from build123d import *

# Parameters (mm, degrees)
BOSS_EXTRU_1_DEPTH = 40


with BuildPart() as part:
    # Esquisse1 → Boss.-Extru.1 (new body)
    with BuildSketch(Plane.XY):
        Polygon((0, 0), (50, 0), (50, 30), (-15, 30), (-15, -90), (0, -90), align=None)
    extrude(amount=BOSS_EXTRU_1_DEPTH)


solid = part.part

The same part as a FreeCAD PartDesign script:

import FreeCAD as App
import Part
import Sketcher
from FreeCAD import Vector

doc = App.newDocument("Part")
body = doc.addObject("PartDesign::Body", "Body")

# Sketch on XY plane
sketch1 = body.newObject("Sketcher::SketchObject", "Sketch")
sketch1.AttachmentSupport = (doc.getObject("XY_Plane"), [""])
sketch1.MapMode = "FlatFace"
sketch1.addGeometry(Part.LineSegment(Vector(0, 0, 0), Vector(50, 0, 0)), False)
sketch1.addGeometry(Part.LineSegment(Vector(50, 0, 0), Vector(50, 30, 0)), False)
sketch1.addGeometry(Part.LineSegment(Vector(50, 30, 0), Vector(-15, 30, 0)), False)
sketch1.addGeometry(Part.LineSegment(Vector(-15, 30, 0), Vector(-15, -90, 0)), False)
sketch1.addGeometry(Part.LineSegment(Vector(-15, -90, 0), Vector(0, -90, 0)), False)
sketch1.addGeometry(Part.LineSegment(Vector(0, -90, 0), Vector(0, 0, 0)), False)
sketch1.addConstraint(Sketcher.Constraint("Coincident", 0, 2, 1, 1))
sketch1.addConstraint(Sketcher.Constraint("Coincident", 1, 2, 2, 1))
sketch1.addConstraint(Sketcher.Constraint("Coincident", 2, 2, 3, 1))
sketch1.addConstraint(Sketcher.Constraint("Coincident", 3, 2, 4, 1))
sketch1.addConstraint(Sketcher.Constraint("Coincident", 4, 2, 5, 1))
sketch1.addConstraint(Sketcher.Constraint("Coincident", 5, 2, 0, 1))
sketch1.addConstraint(Sketcher.Constraint("Horizontal", 0))
sketch1.addConstraint(Sketcher.Constraint("Vertical", 1))
sketch1.addConstraint(Sketcher.Constraint("Horizontal", 2))
sketch1.addConstraint(Sketcher.Constraint("Vertical", 3))
sketch1.addConstraint(Sketcher.Constraint("Horizontal", 4))
sketch1.addConstraint(Sketcher.Constraint("Vertical", 5))
sketch1.addConstraint(Sketcher.Constraint("Coincident", 5, 2, -1, 1))
sketch1.addConstraint(Sketcher.Constraint("DistanceX", 0, 1, 0, 2, 50.0))
sketch1.addConstraint(Sketcher.Constraint("DistanceX", 2, 2, 2, 1, 65.0))
sketch1.addConstraint(Sketcher.Constraint("DistanceY", 1, 1, 1, 2, 30.0))
sketch1.addConstraint(Sketcher.Constraint("DistanceY", 3, 2, 3, 1, 120.0))
pad1 = body.newObject("PartDesign::Pad", "Pad")
pad1.Profile = sketch1
pad1.Length = 40

doc.recompute()
